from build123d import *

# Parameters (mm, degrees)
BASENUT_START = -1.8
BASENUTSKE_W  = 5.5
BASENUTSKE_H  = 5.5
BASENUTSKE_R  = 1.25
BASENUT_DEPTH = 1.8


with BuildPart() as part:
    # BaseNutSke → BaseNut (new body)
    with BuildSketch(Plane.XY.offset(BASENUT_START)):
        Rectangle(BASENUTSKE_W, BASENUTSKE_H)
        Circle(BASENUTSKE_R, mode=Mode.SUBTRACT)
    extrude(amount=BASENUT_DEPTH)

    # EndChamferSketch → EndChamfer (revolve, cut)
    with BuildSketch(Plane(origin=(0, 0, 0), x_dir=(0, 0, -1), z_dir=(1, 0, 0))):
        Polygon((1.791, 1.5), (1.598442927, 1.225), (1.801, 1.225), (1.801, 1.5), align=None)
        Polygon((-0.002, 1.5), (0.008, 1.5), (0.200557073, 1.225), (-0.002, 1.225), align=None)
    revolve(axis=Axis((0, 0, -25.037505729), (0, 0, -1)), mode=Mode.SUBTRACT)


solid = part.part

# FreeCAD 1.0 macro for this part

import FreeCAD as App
import Part
import Sketcher
from FreeCAD import Vector
Q = App.Units.Quantity


def add_polygon(sketch, points):
    """Adds a closed chain of lines whose ends are joined by coincident constraints."""
    first, n = sketch.GeometryCount, len(points)
    for a, b in zip(points, points[1:] + points[:1]):
        sketch.addGeometry(Part.LineSegment(App.Vector(*a, 0), App.Vector(*b, 0)), False)
    for i in range(n):
        sketch.addConstraint(Sketcher.Constraint("Coincident", first + i, 2, first + (i + 1) % n, 1))

doc = App.newDocument("Part")
body = doc.addObject("PartDesign::Body", "Body")

# Sketch on XY plane
sketch1 = body.newObject("Sketcher::SketchObject", "Sketch")
sketch1.AttachmentSupport = (doc.getObject("XY_Plane"), [""])
sketch1.MapMode = "FlatFace"
sketch1.AttachmentOffset = App.Placement(Vector(0, 0, -1.8), App.Rotation())
add_polygon(sketch1, [(-2.75, 2.75), (-2.75, -2.75), (2.75, -2.75), (2.75, 2.75)])  # lines 0-3
sketch1.addGeometry(Part.Circle(Vector(0, 0, 0), Vector(0, 0, 1), 1.25), False)  # 4
sketch1.addConstraint([
    Sketcher.Constraint("Vertical", 0),
    Sketcher.Constraint("Horizontal", 1),
    Sketcher.Constraint("Vertical", 2),
    Sketcher.Constraint("Horizontal", 3),
    Sketcher.Constraint("Coincident", 4, 3, -1, 1),
    Sketcher.Constraint("Symmetric", 0, 2, 2, 2, -1, 1),
    Sketcher.Constraint("Equal", 3, 0),
    Sketcher.Constraint("Diameter", 4, Q("2.5 mm")),
    Sketcher.Constraint("DistanceX", 1, 1, 1, 2, Q("5.5 mm")),
])
pad1 = body.newObject("PartDesign::Pad", "Pad")
pad1.Profile = sketch1
pad1.Length = 1.8

# Sketch on YZ plane
sketch2 = body.newObject("Sketcher::SketchObject", "Sketch001")
sketch2.AttachmentSupport = (doc.getObject("YZ_Plane"), [""])
sketch2.MapMode = "FlatFace"
add_polygon(sketch2, [(1.5, -1.791), (1.225, -1.598443), (1.225, -1.801), (1.5, -1.801)])  # lines 0-3
add_polygon(sketch2, [(1.5, -0.008), (1.5, 0.002), (1.225, 0.002), (1.225, -0.200557)])  # lines 4-7
sketch2.addConstraint([
    Sketcher.Constraint("Vertical", 1),
    Sketcher.Constraint("Horizontal", 2),
    Sketcher.Constraint("Vertical", 3),
    Sketcher.Constraint("Vertical", 4),
    Sketcher.Constraint("Horizontal", 5),
    Sketcher.Constraint("Vertical", 6),
    Sketcher.Constraint("Vertical", 3, 2, 4, 2),
    Sketcher.Constraint("Vertical", 1, 2, 5, 2),
    Sketcher.Constraint("Equal", 3, 4),
    Sketcher.Constraint("Equal", 1, 6),
    Sketcher.Constraint("Angle", 0, Q("145 deg")),
    Sketcher.Constraint("DistanceY", 3, 1, 3, 2, Q("0.01 mm")),
    Sketcher.Constraint("DistanceX", -1, 1, 2, 2, Q("1.5 mm")),
    Sketcher.Constraint("DistanceX", 2, 1, 2, 2, Q("0.275 mm")),
    Sketcher.Constraint("DistanceY", 1, 2, -1, 1, Q("1.801 mm")),
    Sketcher.Constraint("DistanceY", -1, 1, 4, 2, Q("0.002 mm")),
])
groove = body.newObject("PartDesign::Groove", "Groove")
groove.Profile = sketch2
groove.ReferenceAxis = (sketch2, ["V_Axis"])
groove.Angle = 360

doc.recompute()
